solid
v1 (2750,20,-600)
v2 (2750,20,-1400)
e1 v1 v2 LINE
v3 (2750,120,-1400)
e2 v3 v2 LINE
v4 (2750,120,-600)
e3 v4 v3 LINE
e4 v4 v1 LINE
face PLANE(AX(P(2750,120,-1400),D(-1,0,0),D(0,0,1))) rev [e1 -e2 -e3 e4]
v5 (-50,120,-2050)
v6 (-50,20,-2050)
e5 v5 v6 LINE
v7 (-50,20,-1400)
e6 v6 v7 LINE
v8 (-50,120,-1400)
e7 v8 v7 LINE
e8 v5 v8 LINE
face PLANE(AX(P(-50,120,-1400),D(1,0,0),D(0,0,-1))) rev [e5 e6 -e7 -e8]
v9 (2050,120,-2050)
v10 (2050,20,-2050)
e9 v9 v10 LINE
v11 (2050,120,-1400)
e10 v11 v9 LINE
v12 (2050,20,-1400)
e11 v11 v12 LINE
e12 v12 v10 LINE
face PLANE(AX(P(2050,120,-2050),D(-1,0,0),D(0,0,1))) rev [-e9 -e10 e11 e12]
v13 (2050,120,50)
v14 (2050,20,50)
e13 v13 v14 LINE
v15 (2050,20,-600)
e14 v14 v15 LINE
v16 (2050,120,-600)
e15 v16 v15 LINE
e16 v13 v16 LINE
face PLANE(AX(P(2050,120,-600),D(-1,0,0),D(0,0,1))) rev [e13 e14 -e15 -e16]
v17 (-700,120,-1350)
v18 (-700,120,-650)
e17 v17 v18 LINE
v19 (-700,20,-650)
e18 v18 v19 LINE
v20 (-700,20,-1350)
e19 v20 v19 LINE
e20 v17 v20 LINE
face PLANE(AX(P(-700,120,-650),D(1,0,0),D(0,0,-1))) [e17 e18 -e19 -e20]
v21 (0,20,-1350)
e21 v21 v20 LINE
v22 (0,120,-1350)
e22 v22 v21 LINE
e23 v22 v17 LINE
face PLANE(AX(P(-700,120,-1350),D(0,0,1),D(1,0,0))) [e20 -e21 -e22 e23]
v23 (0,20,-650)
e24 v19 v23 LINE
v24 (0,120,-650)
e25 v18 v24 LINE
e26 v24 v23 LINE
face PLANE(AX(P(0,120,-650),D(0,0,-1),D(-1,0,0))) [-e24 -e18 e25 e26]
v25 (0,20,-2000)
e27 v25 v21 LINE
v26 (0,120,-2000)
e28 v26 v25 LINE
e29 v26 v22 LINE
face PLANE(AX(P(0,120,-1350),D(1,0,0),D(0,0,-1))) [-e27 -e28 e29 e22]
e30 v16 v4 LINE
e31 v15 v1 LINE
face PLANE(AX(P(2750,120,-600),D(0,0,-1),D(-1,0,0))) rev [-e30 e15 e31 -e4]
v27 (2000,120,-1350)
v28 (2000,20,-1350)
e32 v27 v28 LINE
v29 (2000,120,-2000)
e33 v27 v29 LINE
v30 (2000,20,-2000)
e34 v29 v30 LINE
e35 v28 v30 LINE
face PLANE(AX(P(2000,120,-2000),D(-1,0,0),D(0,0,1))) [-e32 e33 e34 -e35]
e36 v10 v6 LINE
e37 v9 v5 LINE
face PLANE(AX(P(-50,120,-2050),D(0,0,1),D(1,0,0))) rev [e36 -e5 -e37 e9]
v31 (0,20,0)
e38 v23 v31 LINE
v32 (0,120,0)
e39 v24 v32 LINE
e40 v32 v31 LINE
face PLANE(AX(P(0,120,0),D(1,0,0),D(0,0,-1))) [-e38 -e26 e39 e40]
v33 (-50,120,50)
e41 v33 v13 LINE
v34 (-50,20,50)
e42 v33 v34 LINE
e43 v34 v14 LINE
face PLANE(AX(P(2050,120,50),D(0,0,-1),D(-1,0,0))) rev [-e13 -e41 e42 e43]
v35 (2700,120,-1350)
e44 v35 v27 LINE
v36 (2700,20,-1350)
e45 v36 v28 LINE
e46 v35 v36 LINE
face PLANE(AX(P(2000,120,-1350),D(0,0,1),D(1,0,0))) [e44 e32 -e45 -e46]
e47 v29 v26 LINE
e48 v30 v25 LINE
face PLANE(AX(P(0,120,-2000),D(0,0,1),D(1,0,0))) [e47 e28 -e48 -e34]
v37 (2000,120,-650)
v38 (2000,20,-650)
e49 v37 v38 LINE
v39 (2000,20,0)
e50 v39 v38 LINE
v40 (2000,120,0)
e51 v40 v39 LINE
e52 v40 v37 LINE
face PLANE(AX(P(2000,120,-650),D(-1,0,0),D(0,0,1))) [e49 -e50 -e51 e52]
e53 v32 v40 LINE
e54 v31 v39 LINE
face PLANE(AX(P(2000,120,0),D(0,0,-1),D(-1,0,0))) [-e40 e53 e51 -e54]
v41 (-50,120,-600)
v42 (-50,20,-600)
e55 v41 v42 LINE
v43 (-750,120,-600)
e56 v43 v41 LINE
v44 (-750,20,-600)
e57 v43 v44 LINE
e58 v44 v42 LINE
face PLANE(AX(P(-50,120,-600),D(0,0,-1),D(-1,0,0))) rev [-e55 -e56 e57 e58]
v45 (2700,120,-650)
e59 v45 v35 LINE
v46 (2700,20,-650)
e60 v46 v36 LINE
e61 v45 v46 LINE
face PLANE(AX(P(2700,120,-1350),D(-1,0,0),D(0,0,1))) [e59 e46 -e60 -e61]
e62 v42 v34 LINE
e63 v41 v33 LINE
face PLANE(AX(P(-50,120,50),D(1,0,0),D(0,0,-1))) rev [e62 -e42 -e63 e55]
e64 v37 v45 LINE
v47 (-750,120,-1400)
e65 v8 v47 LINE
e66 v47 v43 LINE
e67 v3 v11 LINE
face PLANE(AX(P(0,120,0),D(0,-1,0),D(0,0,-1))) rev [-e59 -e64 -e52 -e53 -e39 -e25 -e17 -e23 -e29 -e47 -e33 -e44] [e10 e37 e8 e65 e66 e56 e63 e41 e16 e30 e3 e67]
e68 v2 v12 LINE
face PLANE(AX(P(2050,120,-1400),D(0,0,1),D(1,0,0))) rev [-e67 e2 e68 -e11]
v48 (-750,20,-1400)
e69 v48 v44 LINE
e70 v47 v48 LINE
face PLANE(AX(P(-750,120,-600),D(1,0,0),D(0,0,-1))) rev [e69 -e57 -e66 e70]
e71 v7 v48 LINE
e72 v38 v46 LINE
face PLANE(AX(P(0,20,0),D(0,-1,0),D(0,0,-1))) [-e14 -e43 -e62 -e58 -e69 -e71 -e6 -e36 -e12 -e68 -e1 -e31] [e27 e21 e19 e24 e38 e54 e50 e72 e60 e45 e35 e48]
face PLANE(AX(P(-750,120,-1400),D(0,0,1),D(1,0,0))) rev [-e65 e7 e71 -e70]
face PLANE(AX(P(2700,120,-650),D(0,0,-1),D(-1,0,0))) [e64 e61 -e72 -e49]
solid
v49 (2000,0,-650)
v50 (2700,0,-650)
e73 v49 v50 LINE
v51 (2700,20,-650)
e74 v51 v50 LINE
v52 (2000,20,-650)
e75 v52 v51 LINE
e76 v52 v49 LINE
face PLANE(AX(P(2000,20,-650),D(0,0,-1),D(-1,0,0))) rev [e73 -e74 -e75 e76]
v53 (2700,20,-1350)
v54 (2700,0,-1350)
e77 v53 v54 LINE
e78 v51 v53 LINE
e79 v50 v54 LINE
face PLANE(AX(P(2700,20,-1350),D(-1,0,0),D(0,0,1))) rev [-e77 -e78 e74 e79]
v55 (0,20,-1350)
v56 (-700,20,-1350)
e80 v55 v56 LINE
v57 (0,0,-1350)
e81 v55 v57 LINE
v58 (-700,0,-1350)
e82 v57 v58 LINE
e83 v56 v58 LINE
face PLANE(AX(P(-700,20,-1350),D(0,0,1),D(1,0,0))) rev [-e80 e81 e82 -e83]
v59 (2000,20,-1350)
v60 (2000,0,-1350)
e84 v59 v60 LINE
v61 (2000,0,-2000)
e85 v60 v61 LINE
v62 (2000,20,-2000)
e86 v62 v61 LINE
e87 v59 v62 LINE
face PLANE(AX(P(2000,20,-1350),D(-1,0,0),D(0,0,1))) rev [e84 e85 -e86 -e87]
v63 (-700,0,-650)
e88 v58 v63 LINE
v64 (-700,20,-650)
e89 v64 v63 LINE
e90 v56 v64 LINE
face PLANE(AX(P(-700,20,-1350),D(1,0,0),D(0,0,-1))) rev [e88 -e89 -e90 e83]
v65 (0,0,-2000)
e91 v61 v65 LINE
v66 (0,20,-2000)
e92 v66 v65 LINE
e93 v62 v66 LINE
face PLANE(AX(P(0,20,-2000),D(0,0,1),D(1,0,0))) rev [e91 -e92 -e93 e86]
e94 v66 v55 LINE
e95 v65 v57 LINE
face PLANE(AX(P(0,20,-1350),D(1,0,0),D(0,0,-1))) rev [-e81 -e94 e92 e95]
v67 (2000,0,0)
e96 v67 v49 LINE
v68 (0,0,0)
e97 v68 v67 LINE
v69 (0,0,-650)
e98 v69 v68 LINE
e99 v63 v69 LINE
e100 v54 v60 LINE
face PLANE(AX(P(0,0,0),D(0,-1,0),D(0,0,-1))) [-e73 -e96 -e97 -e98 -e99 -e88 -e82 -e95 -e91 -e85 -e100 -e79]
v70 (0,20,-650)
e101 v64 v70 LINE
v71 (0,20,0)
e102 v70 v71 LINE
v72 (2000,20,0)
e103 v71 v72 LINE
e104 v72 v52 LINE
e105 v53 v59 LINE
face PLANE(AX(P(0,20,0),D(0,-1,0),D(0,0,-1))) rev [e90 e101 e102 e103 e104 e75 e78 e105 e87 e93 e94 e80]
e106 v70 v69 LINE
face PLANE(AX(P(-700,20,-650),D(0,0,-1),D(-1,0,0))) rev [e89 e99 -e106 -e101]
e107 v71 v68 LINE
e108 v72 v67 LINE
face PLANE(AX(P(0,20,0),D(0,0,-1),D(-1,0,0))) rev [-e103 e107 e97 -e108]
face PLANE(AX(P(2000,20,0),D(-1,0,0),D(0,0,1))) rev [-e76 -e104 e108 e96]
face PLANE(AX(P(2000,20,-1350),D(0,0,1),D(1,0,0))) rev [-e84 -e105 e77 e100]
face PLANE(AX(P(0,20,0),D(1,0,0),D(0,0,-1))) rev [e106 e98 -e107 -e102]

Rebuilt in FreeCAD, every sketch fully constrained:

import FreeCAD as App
import Part
import Sketcher

V = App.Vector

doc = App.newDocument("Part")
body = doc.addObject("PartDesign::Body", "Body")

sketch1 = doc.addObject("Sketcher::SketchObject", "Sketch")
body.addObject(sketch1)
sketch1.AttachmentSupport = (doc.XZ_Plane, [""])
sketch1.MapMode = "FlatFace"
sketch1.addGeometry([
    Part.LineSegment(V(0, -2000, 0), V(0, -1350, 0)),
    Part.LineSegment(V(0, -1350, 0), V(-700, -1350, 0)),
    Part.LineSegment(V(-700, -1350, 0), V(-700, -650, 0)),
    Part.LineSegment(V(-700, -650, 0), V(0, -650, 0)),
    Part.LineSegment(V(0, -650, 0), V(0, 0, 0)),
    Part.LineSegment(V(0, 0, 0), V(2000, 0, 0)),
    Part.LineSegment(V(2000, 0, 0), V(2000, -650, 0)),
    Part.LineSegment(V(2000, -650, 0), V(2700, -650, 0)),
    Part.LineSegment(V(2700, -650, 0), V(2700, -1350, 0)),
    Part.LineSegment(V(2700, -1350, 0), V(2000, -1350, 0)),
    Part.LineSegment(V(2000, -1350, 0), V(2000, -2000, 0)),
    Part.LineSegment(V(2000, -2000, 0), V(0, -2000, 0)),
], False)
sketch1.addConstraint([
    Sketcher.Constraint("Coincident", 0, 2, 1, 1),
    Sketcher.Constraint("Coincident", 1, 2, 2, 1),
    Sketcher.Constraint("Coincident", 2, 2, 3, 1),
    Sketcher.Constraint("Coincident", 3, 2, 4, 1),
    Sketcher.Constraint("Coincident", 4, 2, 5, 1),
    Sketcher.Constraint("Coincident", 5, 2, 6, 1),
    Sketcher.Constraint("Coincident", 6, 2, 7, 1),
    Sketcher.Constraint("Coincident", 7, 2, 8, 1),
    Sketcher.Constraint("Coincident", 8, 2, 9, 1),
    Sketcher.Constraint("Coincident", 9, 2, 10, 1),
    Sketcher.Constraint("Coincident", 10, 2, 11, 1),
    Sketcher.Constraint("Coincident", 11, 2, 0, 1),
    Sketcher.Constraint("Vertical", 0),
    Sketcher.Constraint("Horizontal", 1),
    Sketcher.Constraint("Vertical", 2),
    Sketcher.Constraint("Horizontal", 3),
    Sketcher.Constraint("Vertical", 4),
    Sketcher.Constraint("Horizontal", 5),
    Sketcher.Constraint("Vertical", 6),
    Sketcher.Constraint("Horizontal", 7),
    Sketcher.Constraint("Vertical", 8),
    Sketcher.Constraint("Horizontal", 9),
    Sketcher.Constraint("Vertical", 10),
    Sketcher.Constraint("Horizontal", 11),
    Sketcher.Constraint("Coincident", 4, 2, -1, 1),
    Sketcher.Constraint("PointOnObject", 0, 2, -2),
    Sketcher.Constraint("Horizontal", 3, 2, 6, 2),
    Sketcher.Constraint("Horizontal", 1, 2, 8, 2),
    Sketcher.Constraint("Vertical", 6, 2, 9, 2),
    Sketcher.Constraint("Equal", 3, 7),
    Sketcher.Constraint("Equal", 9, 2),
    Sketcher.Constraint("Equal", 0, 4),
    Sketcher.Constraint("DistanceX", 1, 2, 1, 1, 700.0),
    Sketcher.Constraint("DistanceX", 5, 1, 5, 2, 2000.0),
    Sketcher.Constraint("DistanceY", 0, 1, 0, 2, 650.0),
])
pad1 = doc.addObject("PartDesign::Pad", "Pad")
body.addObject(pad1)
pad1.Profile = sketch1
pad1.Length = 20
pad1.Reversed = True
body2 = doc.addObject("PartDesign::Body", "Body001")

sketch2 = doc.addObject("Sketcher::SketchObject", "Sketch001")
body2.addObject(sketch2)
sketch2.AttachmentSupport = (doc.getObject("XZ_Plane001"), [""])
sketch2.MapMode = "FlatFace"
sketch2.AttachmentOffset = App.Placement(V(0, 0, -20), App.Rotation())
sketch2.addGeometry([
    Part.LineSegment(V(-750, -1400, 0), V(-750, -600, 0)),
    Part.LineSegment(V(-750, -600, 0), V(-50, -600, 0)),
    Part.LineSegment(V(-50, -600, 0), V(-50, 50, 0)),
    Part.LineSegment(V(-50, 50, 0), V(2050, 50, 0)),
    Part.LineSegment(V(2050, 50, 0), V(2050, -600, 0)),
    Part.LineSegment(V(2050, -600, 0), V(2750, -600, 0)),
    Part.LineSegment(V(2750, -600, 0), V(2750, -1400, 0)),
    Part.LineSegment(V(2750, -1400, 0), V(2050, -1400, 0)),
    Part.LineSegment(V(2050, -1400, 0), V(2050, -2050, 0)),
    Part.LineSegment(V(2050, -2050, 0), V(-50, -2050, 0)),
    Part.LineSegment(V(-50, -2050, 0), V(-50, -1400, 0)),
    Part.LineSegment(V(-50, -1400, 0), V(-750, -1400, 0)),
    Part.LineSegment(V(-700, -1350, 0), V(0, -1350, 0)),
    Part.LineSegment(V(0, -1350, 0), V(0, -2000, 0)),
    Part.LineSegment(V(0, -2000, 0), V(2000, -2000, 0)),
    Part.LineSegment(V(2000, -2000, 0), V(2000, -1350, 0)),
    Part.LineSegment(V(2000, -1350, 0), V(2700, -1350, 0)),
    Part.LineSegment(V(2700, -1350, 0), V(2700, -650, 0)),
    Part.LineSegment(V(2700, -650, 0), V(2000, -650, 0)),
    Part.LineSegment(V(2000, -650, 0), V(2000, 0, 0)),
    Part.LineSegment(V(2000, 0, 0), V(0, 0, 0)),
    Part.LineSegment(V(0, 0, 0), V(0, -650, 0)),
    Part.LineSegment(V(0, -650, 0), V(-700, -650, 0)),
    Part.LineSegment(V(-700, -650, 0), V(-700, -1350, 0)),
], False)
sketch2.addConstraint([
    Sketcher.Constraint("Coincident", 0, 2, 1, 1),
    Sketcher.Constraint("Coincident", 1, 2, 2, 1),
    Sketcher.Constraint("Coincident", 2, 2, 3, 1),
    Sketcher.Constraint("Coincident", 3, 2, 4, 1),
    Sketcher.Constraint("Coincident", 4, 2, 5, 1),
    Sketcher.Constraint("Coincident", 5, 2, 6, 1),
    Sketcher.Constraint("Coincident", 6, 2, 7, 1),
    Sketcher.Constraint("Coincident", 7, 2, 8, 1),
    Sketcher.Constraint("Coincident", 8, 2, 9, 1),
    Sketcher.Constraint("Coincident", 9, 2, 10, 1),
    Sketcher.Constraint("Coincident", 10, 2, 11, 1),
    Sketcher.Constraint("Coincident", 11, 2, 0, 1),
    Sketcher.Constraint("Coincident", 12, 2, 13, 1),
    Sketcher.Constraint("Coincident", 13, 2, 14, 1),
    Sketcher.Constraint("Coincident", 14, 2, 15, 1),
    Sketcher.Constraint("Coincident", 15, 2, 16, 1),
    Sketcher.Constraint("Coincident", 16, 2, 17, 1),
    Sketcher.Constraint("Coincident", 17, 2, 18, 1),
    Sketcher.Constraint("Coincident", 18, 2, 19, 1),
    Sketcher.Constraint("Coincident", 19, 2, 20, 1),
    Sketcher.Constraint("Coincident", 20, 2, 21, 1),
    Sketcher.Constraint("Coincident", 21, 2, 22, 1),
    Sketcher.Constraint("Coincident", 22, 2, 23, 1),
    Sketcher.Constraint("Coincident", 23, 2, 12, 1),
    Sketcher.Constraint("Vertical", 0),
    Sketcher.Constraint("Horizontal", 1),
    Sketcher.Constraint("Vertical", 2),
    Sketcher.Constraint("Horizontal", 3),
    Sketcher.Constraint("Vertical", 4),
    Sketcher.Constraint("Horizontal", 5),
    Sketcher.Constraint("Vertical", 6),
    Sketcher.Constraint("Horizontal", 7),
    Sketcher.Constraint("Vertical", 8),
    Sketcher.Constraint("Horizontal", 9),
    Sketcher.Constraint("Vertical", 10),
    Sketcher.Constraint("Horizontal", 11),
    Sketcher.Constraint("Horizontal", 12),
    Sketcher.Constraint("Vertical", 13),
    Sketcher.Constraint("Horizontal", 14),
    Sketcher.Constraint("Vertical", 15),
    Sketcher.Constraint("Horizontal", 16),
    Sketcher.Constraint("Vertical", 17),
    Sketcher.Constraint("Horizontal", 18),
    Sketcher.Constraint("Vertical", 19),
    Sketcher.Constraint("Horizontal", 20),
    Sketcher.Constraint("Vertical", 21),
    Sketcher.Constraint("Horizontal", 22),
    Sketcher.Constraint("Vertical", 23),
    Sketcher.Constraint("Coincident", 20, 2, -1, 1),
    Sketcher.Constraint("PointOnObject", 12, 2, -2),
    Sketcher.Constraint("Horizontal", 1, 2, 4, 2),
    Sketcher.Constraint("Horizontal", 7, 2, 10, 2),
    Sketcher.Constraint("Horizontal", 12, 2, 15, 2),
    Sketcher.Constraint("Horizontal", 18, 2, 21, 2),
    Sketcher.Constraint("Vertical", 4, 2, 7, 2),
    Sketcher.Constraint("Vertical", 2, 2, 9, 2),
    Sketcher.Constraint("Vertical", 15, 2, 18, 2),
    Sketcher.Constraint("Equal", 1, 5),
    Sketcher.Constraint("Equal", 11, 12),
    Sketcher.Constraint("Equal", 12, 16),
    Sketcher.Constraint("Equal", 4, 8),
    Sketcher.Constraint("Equal", 10, 13),
    Sketcher.Constraint("Equal", 22, 17),
    Sketcher.Constraint("Equal", 15, 19),
    Sketcher.Constraint("DistanceX", 1, 1, 1, 2, 700.0),
    Sketcher.Constraint("DistanceX", 3, 1, 3, 2, 2100.0),
    Sketcher.Constraint("DistanceX", 14, 1, 14, 2, 2000.0),
    Sketcher.Constraint("DistanceY", 0, 1, 0, 2, 800.0),
    Sketcher.Constraint("DistanceY", 2, 1, 2, 2, 650.0),
    Sketcher.Constraint("DistanceX", 0, 2, -1, 1, 750.0),
    Sketcher.Constraint("DistanceY", 0, 2, -1, 1, 600.0),
])
pad2 = doc.addObject("PartDesign::Pad", "Pad001")
body2.addObject(pad2)
pad2.Profile = sketch2
pad2.Length = 100
pad2.Reversed = True

doc.recompute()
